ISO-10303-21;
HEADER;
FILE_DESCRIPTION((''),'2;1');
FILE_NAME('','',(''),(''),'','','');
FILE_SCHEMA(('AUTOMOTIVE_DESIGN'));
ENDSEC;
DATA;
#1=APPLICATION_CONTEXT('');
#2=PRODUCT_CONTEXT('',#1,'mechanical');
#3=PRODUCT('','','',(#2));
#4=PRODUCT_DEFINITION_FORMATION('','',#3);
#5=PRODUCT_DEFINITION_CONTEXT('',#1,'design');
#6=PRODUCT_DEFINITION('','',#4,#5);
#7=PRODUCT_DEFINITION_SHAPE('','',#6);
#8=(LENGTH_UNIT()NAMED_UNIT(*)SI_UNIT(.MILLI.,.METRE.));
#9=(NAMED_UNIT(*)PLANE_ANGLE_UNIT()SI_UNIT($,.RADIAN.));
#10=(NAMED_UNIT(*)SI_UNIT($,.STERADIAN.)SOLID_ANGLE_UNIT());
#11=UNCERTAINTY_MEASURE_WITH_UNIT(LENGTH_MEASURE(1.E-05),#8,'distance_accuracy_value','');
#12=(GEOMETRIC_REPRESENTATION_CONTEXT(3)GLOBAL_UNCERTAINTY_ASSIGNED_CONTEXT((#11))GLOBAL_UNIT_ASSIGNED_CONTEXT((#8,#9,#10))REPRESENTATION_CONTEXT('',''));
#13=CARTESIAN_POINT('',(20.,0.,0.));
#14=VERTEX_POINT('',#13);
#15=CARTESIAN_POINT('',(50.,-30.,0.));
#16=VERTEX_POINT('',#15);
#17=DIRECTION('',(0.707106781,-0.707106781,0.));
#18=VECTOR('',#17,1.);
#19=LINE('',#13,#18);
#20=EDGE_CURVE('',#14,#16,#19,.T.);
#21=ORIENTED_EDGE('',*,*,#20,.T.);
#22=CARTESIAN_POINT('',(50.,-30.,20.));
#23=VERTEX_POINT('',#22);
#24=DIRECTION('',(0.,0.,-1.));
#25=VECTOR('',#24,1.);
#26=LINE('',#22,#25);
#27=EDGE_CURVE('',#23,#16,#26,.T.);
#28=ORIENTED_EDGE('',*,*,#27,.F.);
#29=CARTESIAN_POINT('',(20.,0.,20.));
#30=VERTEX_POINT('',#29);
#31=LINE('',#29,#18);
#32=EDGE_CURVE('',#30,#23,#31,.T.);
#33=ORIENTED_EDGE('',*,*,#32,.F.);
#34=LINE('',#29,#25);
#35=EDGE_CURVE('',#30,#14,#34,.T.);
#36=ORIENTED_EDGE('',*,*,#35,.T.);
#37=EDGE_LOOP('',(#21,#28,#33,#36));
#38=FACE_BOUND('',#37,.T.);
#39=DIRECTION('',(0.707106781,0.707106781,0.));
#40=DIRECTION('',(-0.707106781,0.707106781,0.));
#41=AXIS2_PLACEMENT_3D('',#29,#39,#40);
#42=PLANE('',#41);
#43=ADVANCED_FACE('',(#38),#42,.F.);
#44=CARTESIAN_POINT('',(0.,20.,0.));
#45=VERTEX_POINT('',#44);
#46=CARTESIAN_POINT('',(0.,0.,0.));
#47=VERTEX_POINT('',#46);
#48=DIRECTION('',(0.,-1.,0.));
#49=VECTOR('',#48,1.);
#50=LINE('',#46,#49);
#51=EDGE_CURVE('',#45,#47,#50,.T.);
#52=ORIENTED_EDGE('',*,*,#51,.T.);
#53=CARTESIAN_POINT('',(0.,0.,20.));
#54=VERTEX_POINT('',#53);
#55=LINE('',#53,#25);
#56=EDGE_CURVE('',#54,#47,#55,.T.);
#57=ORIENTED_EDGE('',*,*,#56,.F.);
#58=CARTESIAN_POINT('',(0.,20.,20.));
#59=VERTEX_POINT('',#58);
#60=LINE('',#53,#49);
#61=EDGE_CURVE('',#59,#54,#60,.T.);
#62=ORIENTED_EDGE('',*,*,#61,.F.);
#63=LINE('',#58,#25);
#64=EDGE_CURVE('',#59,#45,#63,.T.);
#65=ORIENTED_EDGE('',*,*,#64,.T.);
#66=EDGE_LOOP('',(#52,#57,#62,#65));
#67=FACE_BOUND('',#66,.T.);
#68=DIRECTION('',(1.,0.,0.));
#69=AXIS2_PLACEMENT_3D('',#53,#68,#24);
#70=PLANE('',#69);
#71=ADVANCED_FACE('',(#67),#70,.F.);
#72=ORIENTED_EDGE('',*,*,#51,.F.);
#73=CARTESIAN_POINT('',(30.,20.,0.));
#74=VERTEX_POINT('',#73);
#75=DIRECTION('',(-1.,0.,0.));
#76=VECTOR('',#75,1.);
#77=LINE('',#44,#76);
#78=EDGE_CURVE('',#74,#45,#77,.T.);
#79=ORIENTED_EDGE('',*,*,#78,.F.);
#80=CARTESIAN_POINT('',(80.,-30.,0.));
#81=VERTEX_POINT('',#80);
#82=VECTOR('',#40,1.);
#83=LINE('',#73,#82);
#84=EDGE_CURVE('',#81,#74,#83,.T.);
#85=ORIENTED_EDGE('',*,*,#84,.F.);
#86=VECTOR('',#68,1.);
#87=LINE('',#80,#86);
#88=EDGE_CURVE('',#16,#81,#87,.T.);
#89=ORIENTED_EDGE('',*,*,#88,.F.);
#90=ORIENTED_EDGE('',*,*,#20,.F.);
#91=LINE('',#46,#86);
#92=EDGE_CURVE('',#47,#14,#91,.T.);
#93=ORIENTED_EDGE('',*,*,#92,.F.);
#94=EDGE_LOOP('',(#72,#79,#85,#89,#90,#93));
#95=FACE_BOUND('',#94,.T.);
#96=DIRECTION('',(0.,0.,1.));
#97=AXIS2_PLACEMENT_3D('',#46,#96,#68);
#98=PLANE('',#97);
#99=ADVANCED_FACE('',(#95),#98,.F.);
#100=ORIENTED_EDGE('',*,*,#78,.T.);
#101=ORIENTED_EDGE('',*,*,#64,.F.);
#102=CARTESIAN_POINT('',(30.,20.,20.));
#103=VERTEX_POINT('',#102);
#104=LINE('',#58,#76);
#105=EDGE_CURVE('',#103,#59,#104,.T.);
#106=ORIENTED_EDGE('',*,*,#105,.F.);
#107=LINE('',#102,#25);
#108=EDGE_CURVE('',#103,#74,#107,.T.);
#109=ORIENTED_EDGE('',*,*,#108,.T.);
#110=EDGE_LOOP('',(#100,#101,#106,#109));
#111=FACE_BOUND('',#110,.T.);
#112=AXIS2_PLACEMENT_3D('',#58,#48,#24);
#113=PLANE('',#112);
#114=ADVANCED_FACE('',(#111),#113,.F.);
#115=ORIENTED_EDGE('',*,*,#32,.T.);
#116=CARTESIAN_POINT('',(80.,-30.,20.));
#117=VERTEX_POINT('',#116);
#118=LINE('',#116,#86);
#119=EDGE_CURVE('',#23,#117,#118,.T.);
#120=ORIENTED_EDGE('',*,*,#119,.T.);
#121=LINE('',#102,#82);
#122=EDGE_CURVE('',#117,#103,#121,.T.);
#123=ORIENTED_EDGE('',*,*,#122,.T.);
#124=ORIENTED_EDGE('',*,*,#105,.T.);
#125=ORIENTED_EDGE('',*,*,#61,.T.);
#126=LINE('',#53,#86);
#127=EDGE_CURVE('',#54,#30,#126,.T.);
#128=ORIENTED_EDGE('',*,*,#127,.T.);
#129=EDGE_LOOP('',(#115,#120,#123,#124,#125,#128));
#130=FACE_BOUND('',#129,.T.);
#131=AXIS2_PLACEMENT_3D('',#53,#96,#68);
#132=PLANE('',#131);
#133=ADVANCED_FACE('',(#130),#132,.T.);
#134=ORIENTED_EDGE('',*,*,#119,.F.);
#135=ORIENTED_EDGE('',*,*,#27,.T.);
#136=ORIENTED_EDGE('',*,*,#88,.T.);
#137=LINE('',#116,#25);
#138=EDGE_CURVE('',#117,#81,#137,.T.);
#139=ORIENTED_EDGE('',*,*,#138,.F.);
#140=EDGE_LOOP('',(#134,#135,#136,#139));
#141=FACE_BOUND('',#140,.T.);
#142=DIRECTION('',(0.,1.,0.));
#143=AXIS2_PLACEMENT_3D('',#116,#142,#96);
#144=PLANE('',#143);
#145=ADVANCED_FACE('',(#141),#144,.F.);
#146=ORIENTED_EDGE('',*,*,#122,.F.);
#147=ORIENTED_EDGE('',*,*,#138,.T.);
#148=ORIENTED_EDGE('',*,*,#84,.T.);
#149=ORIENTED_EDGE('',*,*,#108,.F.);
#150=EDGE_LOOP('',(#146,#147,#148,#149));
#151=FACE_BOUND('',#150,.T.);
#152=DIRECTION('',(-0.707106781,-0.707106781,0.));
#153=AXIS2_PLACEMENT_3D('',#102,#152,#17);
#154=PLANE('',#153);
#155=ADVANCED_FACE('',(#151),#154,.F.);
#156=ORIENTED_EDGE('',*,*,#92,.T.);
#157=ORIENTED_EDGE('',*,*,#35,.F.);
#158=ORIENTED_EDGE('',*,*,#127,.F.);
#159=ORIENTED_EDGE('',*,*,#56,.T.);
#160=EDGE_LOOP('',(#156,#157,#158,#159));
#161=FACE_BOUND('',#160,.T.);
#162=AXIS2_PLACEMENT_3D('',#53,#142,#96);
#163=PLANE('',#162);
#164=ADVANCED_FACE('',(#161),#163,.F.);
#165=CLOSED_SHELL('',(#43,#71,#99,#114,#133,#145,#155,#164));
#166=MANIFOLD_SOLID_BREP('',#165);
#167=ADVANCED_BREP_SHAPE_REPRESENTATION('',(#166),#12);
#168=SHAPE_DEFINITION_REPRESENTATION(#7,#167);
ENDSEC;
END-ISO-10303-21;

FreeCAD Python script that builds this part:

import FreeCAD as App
import Part
import Sketcher
Q = App.Units.Quantity


def add_polygon(sketch, points):
    """Adds a closed chain of lines whose ends are joined by coincident constraints."""
    first, n = sketch.GeometryCount, len(points)
    for a, b in zip(points, points[1:] + points[:1]):
        sketch.addGeometry(Part.LineSegment(App.Vector(*a, 0), App.Vector(*b, 0)), False)
    for i in range(n):
        sketch.addConstraint(Sketcher.Constraint("Coincident", first + i, 2, first + (i + 1) % n, 1))

doc = App.newDocument("Part")
body = doc.addObject("PartDesign::Body", "Body")

# Sketch on XY plane
sketch1 = doc.addObject("Sketcher::SketchObject", "Sketch")
body.addObject(sketch1)
sketch1.AttachmentSupport = (doc.XY_Plane, [""])
sketch1.MapMode = "FlatFace"
add_polygon(sketch1, [(0, 20), (0, 0), (20, 0), (50, -30), (80, -30), (30, 20)])  # lines 0-5
sketch1.addConstraint(Sketcher.Constraint("Vertical", 0))
sketch1.addConstraint(Sketcher.Constraint("Horizontal", 1))
sketch1.addConstraint(Sketcher.Constraint("Horizontal", 3))
sketch1.addConstraint(Sketcher.Constraint("Horizontal", 5))
sketch1.addConstraint(Sketcher.Constraint("Coincident", 0, 2, -1, 1))
sketch1.addConstraint(Sketcher.Constraint("Parallel", 2, 4))
sketch1.addConstraint(Sketcher.Constraint("Equal", 3, 5))
sketch1.addConstraint(Sketcher.Constraint("Equal", 1, 0))
sketch1.addConstraint(Sketcher.Constraint("DistanceX", 1, 1, 1, 2, Q("20 mm")))
sketch1.addConstraint(Sketcher.Constraint("DistanceX", 3, 1, 3, 2, Q("30 mm")))
sketch1.addConstraint(Sketcher.Constraint("DistanceX", -1, 1, 2, 2, Q("50 mm")))
pad1 = doc.addObject("PartDesign::Pad", "Pad")
body.addObject(pad1)
pad1.Profile = sketch1
pad1.Length = 20

doc.recompute()
